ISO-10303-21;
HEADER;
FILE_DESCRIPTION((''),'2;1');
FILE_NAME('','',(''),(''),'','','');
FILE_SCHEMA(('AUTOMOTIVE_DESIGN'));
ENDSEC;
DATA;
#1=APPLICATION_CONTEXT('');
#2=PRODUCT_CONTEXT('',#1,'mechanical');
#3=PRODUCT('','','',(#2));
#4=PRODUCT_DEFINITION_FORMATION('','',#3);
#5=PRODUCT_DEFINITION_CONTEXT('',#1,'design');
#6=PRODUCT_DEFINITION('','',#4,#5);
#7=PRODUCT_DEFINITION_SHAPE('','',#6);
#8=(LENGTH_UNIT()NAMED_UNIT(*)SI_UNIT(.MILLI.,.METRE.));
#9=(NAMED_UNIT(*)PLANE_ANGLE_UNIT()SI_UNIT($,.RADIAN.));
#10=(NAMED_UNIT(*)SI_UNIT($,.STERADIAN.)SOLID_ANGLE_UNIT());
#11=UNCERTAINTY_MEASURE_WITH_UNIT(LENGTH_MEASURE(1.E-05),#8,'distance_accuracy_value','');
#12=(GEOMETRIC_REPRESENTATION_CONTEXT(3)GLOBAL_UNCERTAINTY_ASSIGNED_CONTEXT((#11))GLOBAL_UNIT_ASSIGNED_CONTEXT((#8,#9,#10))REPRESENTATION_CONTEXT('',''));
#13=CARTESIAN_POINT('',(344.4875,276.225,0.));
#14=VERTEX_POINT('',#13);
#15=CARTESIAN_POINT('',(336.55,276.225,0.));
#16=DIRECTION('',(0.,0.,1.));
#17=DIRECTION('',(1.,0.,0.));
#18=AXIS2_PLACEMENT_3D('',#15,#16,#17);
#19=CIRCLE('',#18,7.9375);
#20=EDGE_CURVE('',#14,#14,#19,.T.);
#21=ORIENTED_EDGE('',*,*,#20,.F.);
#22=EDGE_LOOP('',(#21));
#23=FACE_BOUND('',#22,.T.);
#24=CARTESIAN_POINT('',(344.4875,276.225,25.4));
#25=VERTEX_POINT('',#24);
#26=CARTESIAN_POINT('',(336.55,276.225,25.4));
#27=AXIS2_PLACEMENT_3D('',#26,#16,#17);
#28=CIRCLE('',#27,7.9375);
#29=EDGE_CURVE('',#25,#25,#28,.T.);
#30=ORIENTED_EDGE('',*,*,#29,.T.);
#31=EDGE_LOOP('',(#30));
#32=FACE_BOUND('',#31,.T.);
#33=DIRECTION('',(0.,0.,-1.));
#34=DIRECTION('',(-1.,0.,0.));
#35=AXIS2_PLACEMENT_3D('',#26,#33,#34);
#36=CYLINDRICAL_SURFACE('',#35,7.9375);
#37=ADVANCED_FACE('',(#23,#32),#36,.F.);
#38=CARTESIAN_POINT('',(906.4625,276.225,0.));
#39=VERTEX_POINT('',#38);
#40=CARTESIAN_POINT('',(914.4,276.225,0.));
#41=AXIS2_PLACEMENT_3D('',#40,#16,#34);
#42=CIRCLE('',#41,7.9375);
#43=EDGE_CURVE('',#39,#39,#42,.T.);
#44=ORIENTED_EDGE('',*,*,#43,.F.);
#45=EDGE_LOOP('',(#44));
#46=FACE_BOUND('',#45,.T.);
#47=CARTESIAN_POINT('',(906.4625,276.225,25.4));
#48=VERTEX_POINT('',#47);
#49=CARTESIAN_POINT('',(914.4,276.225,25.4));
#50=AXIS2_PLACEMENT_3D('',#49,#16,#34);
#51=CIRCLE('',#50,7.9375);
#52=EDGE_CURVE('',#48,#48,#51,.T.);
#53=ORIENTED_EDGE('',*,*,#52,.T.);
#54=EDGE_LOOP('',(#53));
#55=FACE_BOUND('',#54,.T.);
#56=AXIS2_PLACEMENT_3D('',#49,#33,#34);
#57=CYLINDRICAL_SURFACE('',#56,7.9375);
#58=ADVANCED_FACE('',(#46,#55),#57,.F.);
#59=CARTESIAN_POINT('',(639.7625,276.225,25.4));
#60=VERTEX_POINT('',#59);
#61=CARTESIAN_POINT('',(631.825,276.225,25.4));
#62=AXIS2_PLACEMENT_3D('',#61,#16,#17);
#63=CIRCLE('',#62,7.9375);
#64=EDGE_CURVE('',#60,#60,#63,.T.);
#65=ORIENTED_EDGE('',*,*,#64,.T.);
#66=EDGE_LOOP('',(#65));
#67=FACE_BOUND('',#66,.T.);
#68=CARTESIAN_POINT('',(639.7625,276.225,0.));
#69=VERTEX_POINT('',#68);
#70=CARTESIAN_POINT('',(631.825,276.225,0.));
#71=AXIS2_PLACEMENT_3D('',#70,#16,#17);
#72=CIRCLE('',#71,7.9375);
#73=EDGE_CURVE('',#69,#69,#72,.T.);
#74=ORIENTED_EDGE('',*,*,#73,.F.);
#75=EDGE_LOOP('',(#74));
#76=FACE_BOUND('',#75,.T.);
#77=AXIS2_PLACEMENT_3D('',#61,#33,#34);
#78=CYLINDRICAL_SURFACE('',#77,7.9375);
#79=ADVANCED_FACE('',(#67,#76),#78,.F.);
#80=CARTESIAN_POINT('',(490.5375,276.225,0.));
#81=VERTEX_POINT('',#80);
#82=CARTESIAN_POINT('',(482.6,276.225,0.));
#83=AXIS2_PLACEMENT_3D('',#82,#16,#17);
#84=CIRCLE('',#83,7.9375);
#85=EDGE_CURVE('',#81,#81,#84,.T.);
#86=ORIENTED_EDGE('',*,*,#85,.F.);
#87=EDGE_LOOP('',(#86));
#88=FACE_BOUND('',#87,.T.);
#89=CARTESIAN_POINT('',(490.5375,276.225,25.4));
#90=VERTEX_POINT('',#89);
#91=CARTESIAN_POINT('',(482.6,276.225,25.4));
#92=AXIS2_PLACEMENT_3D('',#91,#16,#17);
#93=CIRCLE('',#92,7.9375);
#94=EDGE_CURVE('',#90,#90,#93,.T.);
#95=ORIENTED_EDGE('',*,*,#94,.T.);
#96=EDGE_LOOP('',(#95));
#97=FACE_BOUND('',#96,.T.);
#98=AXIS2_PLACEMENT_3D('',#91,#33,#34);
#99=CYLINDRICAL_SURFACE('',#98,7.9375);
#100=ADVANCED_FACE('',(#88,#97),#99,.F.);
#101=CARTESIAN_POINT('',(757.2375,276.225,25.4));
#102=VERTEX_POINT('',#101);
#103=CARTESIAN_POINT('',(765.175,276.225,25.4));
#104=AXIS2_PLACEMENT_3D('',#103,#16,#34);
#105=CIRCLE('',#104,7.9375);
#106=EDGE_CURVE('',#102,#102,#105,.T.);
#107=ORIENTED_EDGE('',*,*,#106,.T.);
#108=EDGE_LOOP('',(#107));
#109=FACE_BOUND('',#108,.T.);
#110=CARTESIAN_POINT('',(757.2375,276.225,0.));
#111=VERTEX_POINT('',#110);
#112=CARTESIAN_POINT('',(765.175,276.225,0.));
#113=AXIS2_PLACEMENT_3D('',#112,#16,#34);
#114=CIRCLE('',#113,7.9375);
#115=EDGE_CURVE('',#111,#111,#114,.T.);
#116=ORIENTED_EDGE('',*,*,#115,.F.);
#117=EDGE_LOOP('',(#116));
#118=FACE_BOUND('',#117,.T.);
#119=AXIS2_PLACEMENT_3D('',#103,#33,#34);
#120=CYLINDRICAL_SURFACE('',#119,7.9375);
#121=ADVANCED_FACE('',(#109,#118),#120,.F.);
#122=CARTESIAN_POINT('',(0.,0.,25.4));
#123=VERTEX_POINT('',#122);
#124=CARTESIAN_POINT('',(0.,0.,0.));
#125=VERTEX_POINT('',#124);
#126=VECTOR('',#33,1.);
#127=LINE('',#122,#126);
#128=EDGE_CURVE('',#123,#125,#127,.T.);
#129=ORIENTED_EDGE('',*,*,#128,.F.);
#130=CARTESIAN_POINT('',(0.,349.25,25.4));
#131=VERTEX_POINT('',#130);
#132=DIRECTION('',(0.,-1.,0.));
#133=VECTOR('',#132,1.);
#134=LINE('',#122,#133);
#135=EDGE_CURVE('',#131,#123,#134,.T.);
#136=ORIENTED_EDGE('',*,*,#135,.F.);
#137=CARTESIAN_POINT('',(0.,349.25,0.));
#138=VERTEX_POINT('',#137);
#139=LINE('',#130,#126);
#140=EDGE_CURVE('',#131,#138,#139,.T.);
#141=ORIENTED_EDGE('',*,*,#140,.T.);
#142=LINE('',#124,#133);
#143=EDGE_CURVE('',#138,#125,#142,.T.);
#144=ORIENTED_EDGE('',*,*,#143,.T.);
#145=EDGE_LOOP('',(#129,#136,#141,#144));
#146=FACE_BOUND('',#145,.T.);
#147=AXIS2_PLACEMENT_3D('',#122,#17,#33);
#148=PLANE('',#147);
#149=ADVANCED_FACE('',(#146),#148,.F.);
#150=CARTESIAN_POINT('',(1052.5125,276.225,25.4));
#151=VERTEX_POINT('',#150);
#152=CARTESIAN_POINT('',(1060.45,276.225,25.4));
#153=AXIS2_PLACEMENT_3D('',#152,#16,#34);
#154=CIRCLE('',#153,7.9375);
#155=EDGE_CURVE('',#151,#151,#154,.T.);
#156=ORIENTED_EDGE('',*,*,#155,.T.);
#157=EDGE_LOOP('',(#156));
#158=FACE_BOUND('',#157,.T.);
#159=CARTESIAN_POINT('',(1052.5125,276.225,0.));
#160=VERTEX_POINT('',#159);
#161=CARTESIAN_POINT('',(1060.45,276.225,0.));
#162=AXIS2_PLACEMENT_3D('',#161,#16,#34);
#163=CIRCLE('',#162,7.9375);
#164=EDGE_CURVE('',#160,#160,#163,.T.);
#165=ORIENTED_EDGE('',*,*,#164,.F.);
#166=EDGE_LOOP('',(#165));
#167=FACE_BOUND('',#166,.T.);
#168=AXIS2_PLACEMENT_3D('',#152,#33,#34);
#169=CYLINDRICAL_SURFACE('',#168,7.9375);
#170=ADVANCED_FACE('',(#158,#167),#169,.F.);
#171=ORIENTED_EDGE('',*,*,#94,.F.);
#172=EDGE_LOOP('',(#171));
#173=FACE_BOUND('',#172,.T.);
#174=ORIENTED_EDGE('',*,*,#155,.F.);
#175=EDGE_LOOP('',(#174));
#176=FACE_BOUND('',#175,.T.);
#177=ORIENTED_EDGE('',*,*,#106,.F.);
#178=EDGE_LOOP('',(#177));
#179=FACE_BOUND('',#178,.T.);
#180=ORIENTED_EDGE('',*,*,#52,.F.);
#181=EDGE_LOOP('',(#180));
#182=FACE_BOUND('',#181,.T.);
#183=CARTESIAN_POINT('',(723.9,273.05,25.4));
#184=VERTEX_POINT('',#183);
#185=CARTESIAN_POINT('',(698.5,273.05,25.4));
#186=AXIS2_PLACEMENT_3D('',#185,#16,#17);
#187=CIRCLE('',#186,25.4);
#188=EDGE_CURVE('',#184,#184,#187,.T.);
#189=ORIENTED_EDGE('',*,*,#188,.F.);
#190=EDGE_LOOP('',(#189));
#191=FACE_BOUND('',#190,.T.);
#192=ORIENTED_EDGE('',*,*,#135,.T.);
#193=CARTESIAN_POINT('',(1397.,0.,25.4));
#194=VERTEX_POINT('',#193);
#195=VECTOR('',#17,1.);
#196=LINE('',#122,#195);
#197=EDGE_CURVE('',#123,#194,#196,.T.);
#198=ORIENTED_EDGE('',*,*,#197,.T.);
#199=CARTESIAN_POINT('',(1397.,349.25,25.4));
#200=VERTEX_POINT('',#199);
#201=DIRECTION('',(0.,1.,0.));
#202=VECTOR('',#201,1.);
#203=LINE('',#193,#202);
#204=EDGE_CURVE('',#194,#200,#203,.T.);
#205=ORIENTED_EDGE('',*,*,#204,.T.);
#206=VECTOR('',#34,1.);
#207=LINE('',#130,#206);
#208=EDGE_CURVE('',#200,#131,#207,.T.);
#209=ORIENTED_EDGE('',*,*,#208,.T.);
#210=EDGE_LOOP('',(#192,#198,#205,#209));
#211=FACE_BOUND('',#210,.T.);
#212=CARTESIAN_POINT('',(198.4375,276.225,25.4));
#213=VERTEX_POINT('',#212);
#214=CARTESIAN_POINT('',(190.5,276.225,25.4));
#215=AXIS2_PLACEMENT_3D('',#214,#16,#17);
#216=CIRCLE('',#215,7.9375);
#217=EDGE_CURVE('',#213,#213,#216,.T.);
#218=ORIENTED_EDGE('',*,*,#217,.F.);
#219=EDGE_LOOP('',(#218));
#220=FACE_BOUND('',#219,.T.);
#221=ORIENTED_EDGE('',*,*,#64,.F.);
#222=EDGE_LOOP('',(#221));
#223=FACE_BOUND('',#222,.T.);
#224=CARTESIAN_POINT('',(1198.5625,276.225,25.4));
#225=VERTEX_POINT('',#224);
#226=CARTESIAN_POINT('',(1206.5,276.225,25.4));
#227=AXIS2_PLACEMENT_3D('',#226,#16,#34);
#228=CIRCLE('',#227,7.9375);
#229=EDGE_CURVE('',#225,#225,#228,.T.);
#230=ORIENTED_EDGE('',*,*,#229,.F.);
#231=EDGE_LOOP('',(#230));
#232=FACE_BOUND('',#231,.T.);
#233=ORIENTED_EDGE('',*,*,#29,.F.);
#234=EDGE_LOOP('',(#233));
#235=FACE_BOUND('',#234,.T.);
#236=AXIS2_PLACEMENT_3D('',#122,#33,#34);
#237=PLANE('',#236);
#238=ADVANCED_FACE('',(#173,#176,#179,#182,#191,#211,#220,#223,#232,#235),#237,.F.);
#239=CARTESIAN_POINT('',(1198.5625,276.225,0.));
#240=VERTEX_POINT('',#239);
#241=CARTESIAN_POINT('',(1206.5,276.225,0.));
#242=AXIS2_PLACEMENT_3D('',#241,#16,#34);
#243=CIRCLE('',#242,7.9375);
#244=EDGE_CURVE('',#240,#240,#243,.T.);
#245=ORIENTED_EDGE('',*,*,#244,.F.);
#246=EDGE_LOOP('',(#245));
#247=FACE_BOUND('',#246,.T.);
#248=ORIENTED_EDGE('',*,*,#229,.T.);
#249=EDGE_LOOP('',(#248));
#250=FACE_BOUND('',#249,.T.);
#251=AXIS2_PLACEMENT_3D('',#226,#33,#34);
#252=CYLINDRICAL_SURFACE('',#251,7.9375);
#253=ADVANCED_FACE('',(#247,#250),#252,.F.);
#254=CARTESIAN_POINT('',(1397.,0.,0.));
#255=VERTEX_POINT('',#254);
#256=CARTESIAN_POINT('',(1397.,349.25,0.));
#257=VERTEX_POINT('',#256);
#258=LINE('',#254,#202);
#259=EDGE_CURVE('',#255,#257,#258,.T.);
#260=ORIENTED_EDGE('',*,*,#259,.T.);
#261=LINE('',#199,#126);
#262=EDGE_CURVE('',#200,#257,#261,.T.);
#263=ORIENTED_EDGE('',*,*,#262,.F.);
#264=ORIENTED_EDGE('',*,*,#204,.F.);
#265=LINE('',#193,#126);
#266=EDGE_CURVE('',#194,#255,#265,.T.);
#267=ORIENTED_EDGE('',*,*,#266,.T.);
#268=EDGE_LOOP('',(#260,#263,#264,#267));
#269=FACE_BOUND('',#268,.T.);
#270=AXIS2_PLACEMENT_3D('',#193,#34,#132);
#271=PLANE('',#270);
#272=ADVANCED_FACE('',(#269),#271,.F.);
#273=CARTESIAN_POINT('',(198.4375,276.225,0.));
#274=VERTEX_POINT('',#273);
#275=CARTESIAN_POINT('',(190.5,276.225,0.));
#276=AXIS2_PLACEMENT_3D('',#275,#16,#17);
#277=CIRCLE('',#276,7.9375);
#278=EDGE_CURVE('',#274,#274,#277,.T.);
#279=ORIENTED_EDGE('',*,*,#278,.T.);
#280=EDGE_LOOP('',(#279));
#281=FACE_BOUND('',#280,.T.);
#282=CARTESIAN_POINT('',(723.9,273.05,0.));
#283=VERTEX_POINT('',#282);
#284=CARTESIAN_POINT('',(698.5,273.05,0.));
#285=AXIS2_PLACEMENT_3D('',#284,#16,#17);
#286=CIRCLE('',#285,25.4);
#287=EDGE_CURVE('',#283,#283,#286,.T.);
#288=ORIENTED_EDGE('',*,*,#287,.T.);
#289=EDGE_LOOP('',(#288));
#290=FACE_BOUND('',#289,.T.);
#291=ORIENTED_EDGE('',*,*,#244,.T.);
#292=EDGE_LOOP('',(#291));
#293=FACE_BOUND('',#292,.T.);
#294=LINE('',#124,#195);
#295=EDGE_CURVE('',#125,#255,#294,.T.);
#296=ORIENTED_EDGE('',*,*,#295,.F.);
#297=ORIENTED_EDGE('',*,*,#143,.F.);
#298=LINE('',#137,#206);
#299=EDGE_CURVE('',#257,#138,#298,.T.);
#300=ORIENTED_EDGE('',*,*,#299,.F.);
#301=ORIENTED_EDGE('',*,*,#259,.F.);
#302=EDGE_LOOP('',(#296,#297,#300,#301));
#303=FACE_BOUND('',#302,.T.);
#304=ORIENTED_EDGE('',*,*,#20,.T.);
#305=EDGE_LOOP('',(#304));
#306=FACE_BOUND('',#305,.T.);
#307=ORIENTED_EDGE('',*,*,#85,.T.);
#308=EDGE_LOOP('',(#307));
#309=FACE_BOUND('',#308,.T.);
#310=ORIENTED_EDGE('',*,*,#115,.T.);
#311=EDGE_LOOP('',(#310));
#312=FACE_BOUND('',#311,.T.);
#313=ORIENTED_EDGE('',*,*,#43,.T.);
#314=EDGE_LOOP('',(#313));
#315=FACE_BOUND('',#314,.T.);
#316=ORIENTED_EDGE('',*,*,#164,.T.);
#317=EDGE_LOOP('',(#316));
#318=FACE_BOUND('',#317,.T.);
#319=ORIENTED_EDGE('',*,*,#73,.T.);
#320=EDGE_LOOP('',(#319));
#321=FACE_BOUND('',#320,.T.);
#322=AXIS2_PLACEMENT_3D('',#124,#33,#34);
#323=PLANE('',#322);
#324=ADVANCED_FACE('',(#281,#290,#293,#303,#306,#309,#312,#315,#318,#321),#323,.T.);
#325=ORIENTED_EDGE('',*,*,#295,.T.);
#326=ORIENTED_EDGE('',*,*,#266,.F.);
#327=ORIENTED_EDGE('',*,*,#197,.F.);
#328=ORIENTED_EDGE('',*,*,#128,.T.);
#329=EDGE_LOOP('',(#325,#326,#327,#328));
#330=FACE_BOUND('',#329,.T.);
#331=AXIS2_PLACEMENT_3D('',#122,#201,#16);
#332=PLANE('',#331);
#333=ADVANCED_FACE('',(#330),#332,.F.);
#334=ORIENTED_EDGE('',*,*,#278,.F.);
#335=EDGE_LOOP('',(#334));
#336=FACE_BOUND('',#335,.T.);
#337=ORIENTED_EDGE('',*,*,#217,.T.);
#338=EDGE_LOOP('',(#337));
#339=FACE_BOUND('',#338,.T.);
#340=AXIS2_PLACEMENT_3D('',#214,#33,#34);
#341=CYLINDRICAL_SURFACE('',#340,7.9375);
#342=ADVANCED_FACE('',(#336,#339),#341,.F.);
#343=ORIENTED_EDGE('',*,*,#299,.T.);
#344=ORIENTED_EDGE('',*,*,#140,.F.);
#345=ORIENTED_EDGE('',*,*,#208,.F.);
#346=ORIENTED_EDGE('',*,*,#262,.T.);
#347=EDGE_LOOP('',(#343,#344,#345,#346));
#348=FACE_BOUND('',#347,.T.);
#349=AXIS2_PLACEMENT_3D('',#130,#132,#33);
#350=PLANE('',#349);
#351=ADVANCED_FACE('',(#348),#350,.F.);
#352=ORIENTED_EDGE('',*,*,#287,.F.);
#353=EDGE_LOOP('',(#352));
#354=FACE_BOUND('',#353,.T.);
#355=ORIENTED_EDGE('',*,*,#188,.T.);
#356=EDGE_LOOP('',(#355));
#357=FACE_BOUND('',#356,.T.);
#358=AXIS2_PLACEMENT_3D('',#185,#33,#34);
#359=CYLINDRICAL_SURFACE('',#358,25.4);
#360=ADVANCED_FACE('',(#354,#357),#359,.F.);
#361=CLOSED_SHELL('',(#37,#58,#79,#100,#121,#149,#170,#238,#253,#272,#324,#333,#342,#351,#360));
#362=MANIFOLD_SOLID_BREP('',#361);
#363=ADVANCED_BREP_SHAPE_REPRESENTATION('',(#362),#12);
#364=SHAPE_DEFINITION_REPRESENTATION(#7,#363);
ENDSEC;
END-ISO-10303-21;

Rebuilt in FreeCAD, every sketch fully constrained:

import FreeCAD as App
import Part
import Sketcher
Q = App.Units.Quantity


def add_polygon(sketch, points):
    """Adds a closed chain of lines whose ends are joined by coincident constraints."""
    first, n = sketch.GeometryCount, len(points)
    for a, b in zip(points, points[1:] + points[:1]):
        sketch.addGeometry(Part.LineSegment(App.Vector(*a, 0), App.Vector(*b, 0)), False)
    for i in range(n):
        sketch.addConstraint(Sketcher.Constraint("Coincident", first + i, 2, first + (i + 1) % n, 1))

doc = App.newDocument("Part")
body = doc.addObject("PartDesign::Body", "Body")

sketch1 = body.newObject("Sketcher::SketchObject", "Sketch")
sketch1.AttachmentSupport = (doc.getObject("XY_Plane"), [""])
sketch1.MapMode = "FlatFace"
add_polygon(sketch1, [(0, 349), (0, 0), (1397, 0), (1397, 349)])
sketch1.addGeometry(Part.Circle(App.Vector(190, 276, 0), App.Vector(0, 0, 1), 8), False)
sketch1.addGeometry(Part.Circle(App.Vector(337, 276, 0), App.Vector(0, 0, 1), 8), False)
sketch1.addGeometry(Part.Circle(App.Vector(483, 276, 0), App.Vector(0, 0, 1), 8), False)
sketch1.addGeometry(Part.Circle(App.Vector(632, 276, 0), App.Vector(0, 0, 1), 8), False)
sketch1.addGeometry(Part.Circle(App.Vector(698, 273, 0), App.Vector(0, 0, 1), 25), False)
sketch1.addGeometry(Part.Circle(App.Vector(765, 276, 0), App.Vector(0, 0, 1), 8), False)
sketch1.addGeometry(Part.Circle(App.Vector(914, 276, 0), App.Vector(0, 0, 1), 8), False)
sketch1.addGeometry(Part.Circle(App.Vector(1060, 276, 0), App.Vector(0, 0, 1), 8), False)
sketch1.addGeometry(Part.Circle(App.Vector(1206, 276, 0), App.Vector(0, 0, 1), 8), False)
sketch1.addConstraint(Sketcher.Constraint("Vertical", 0))
sketch1.addConstraint(Sketcher.Constraint("Horizontal", 1))
sketch1.addConstraint(Sketcher.Constraint("Vertical", 2))
sketch1.addConstraint(Sketcher.Constraint("Horizontal", 3))
sketch1.addConstraint(Sketcher.Constraint("Coincident", 0, 2, -1, 1))
sketch1.addConstraint(Sketcher.Constraint("Equal", 4, 5))
sketch1.addConstraint(Sketcher.Constraint("Equal", 5, 6))
sketch1.addConstraint(Sketcher.Constraint("Equal", 6, 7))
sketch1.addConstraint(Sketcher.Constraint("Equal", 7, 9))
sketch1.addConstraint(Sketcher.Constraint("Equal", 9, 10))
sketch1.addConstraint(Sketcher.Constraint("Equal", 10, 11))
sketch1.addConstraint(Sketcher.Constraint("Equal", 11, 12))
sketch1.addConstraint(Sketcher.Constraint("Horizontal", 4, 3, 5, 3))
sketch1.addConstraint(Sketcher.Constraint("Horizontal", 5, 3, 6, 3))
sketch1.addConstraint(Sketcher.Constraint("Horizontal", 6, 3, 7, 3))
sketch1.addConstraint(Sketcher.Constraint("Horizontal", 7, 3, 9, 3))
sketch1.addConstraint(Sketcher.Constraint("Horizontal", 9, 3, 10, 3))
sketch1.addConstraint(Sketcher.Constraint("Horizontal", 10, 3, 11, 3))
sketch1.addConstraint(Sketcher.Constraint("Horizontal", 11, 3, 12, 3))
sketch1.addConstraint(Sketcher.Constraint("Diameter", 8, Q("2 in")))
sketch1.addConstraint(Sketcher.Constraint("DistanceX", 1, 1, 1, 2, Q("55 in")))
sketch1.addConstraint(Sketcher.Constraint("Diameter", 4, Q("0.625 in")))
sketch1.addConstraint(Sketcher.Constraint("DistanceX", -1, 1, 6, 3, Q("19 in")))
sketch1.addConstraint(Sketcher.Constraint("DistanceX", -1, 1, 10, 3, Q("36 in")))
sketch1.addConstraint(Sketcher.Constraint("DistanceX", 4, 3, 8, 3, Q("20 in")))
sketch1.addConstraint(Sketcher.Constraint("DistanceX", 8, 3, 12, 3, Q("20 in")))
sketch1.addConstraint(Sketcher.Constraint("DistanceY", 0, 2, 0, 1, Q("13.75 in")))
sketch1.addConstraint(Sketcher.Constraint("DistanceX", -1, 1, 4, 3, Q("7.5 in")))
sketch1.addConstraint(Sketcher.Constraint("DistanceX", -1, 1, 5, 3, Q("13.25 in")))
sketch1.addConstraint(Sketcher.Constraint("DistanceY", -1, 1, 8, 3, Q("10.75 in")))
sketch1.addConstraint(Sketcher.Constraint("DistanceX", -1, 1, 11, 3, Q("41.75 in")))
sketch1.addConstraint(Sketcher.Constraint("DistanceX", 7, 3, 9, 3, Q("5.25 in")))
sketch1.addConstraint(Sketcher.Constraint("DistanceY", -1, 1, 4, 3, Q("10.875 in")))
sketch1.addConstraint(Sketcher.Constraint("DistanceX", -1, 1, 7, 3, Q("24.875 in")))
pad1 = body.newObject("PartDesign::Pad", "Pad")
pad1.Profile = sketch1
pad1.Length = Q("1 in")

doc.recompute()
